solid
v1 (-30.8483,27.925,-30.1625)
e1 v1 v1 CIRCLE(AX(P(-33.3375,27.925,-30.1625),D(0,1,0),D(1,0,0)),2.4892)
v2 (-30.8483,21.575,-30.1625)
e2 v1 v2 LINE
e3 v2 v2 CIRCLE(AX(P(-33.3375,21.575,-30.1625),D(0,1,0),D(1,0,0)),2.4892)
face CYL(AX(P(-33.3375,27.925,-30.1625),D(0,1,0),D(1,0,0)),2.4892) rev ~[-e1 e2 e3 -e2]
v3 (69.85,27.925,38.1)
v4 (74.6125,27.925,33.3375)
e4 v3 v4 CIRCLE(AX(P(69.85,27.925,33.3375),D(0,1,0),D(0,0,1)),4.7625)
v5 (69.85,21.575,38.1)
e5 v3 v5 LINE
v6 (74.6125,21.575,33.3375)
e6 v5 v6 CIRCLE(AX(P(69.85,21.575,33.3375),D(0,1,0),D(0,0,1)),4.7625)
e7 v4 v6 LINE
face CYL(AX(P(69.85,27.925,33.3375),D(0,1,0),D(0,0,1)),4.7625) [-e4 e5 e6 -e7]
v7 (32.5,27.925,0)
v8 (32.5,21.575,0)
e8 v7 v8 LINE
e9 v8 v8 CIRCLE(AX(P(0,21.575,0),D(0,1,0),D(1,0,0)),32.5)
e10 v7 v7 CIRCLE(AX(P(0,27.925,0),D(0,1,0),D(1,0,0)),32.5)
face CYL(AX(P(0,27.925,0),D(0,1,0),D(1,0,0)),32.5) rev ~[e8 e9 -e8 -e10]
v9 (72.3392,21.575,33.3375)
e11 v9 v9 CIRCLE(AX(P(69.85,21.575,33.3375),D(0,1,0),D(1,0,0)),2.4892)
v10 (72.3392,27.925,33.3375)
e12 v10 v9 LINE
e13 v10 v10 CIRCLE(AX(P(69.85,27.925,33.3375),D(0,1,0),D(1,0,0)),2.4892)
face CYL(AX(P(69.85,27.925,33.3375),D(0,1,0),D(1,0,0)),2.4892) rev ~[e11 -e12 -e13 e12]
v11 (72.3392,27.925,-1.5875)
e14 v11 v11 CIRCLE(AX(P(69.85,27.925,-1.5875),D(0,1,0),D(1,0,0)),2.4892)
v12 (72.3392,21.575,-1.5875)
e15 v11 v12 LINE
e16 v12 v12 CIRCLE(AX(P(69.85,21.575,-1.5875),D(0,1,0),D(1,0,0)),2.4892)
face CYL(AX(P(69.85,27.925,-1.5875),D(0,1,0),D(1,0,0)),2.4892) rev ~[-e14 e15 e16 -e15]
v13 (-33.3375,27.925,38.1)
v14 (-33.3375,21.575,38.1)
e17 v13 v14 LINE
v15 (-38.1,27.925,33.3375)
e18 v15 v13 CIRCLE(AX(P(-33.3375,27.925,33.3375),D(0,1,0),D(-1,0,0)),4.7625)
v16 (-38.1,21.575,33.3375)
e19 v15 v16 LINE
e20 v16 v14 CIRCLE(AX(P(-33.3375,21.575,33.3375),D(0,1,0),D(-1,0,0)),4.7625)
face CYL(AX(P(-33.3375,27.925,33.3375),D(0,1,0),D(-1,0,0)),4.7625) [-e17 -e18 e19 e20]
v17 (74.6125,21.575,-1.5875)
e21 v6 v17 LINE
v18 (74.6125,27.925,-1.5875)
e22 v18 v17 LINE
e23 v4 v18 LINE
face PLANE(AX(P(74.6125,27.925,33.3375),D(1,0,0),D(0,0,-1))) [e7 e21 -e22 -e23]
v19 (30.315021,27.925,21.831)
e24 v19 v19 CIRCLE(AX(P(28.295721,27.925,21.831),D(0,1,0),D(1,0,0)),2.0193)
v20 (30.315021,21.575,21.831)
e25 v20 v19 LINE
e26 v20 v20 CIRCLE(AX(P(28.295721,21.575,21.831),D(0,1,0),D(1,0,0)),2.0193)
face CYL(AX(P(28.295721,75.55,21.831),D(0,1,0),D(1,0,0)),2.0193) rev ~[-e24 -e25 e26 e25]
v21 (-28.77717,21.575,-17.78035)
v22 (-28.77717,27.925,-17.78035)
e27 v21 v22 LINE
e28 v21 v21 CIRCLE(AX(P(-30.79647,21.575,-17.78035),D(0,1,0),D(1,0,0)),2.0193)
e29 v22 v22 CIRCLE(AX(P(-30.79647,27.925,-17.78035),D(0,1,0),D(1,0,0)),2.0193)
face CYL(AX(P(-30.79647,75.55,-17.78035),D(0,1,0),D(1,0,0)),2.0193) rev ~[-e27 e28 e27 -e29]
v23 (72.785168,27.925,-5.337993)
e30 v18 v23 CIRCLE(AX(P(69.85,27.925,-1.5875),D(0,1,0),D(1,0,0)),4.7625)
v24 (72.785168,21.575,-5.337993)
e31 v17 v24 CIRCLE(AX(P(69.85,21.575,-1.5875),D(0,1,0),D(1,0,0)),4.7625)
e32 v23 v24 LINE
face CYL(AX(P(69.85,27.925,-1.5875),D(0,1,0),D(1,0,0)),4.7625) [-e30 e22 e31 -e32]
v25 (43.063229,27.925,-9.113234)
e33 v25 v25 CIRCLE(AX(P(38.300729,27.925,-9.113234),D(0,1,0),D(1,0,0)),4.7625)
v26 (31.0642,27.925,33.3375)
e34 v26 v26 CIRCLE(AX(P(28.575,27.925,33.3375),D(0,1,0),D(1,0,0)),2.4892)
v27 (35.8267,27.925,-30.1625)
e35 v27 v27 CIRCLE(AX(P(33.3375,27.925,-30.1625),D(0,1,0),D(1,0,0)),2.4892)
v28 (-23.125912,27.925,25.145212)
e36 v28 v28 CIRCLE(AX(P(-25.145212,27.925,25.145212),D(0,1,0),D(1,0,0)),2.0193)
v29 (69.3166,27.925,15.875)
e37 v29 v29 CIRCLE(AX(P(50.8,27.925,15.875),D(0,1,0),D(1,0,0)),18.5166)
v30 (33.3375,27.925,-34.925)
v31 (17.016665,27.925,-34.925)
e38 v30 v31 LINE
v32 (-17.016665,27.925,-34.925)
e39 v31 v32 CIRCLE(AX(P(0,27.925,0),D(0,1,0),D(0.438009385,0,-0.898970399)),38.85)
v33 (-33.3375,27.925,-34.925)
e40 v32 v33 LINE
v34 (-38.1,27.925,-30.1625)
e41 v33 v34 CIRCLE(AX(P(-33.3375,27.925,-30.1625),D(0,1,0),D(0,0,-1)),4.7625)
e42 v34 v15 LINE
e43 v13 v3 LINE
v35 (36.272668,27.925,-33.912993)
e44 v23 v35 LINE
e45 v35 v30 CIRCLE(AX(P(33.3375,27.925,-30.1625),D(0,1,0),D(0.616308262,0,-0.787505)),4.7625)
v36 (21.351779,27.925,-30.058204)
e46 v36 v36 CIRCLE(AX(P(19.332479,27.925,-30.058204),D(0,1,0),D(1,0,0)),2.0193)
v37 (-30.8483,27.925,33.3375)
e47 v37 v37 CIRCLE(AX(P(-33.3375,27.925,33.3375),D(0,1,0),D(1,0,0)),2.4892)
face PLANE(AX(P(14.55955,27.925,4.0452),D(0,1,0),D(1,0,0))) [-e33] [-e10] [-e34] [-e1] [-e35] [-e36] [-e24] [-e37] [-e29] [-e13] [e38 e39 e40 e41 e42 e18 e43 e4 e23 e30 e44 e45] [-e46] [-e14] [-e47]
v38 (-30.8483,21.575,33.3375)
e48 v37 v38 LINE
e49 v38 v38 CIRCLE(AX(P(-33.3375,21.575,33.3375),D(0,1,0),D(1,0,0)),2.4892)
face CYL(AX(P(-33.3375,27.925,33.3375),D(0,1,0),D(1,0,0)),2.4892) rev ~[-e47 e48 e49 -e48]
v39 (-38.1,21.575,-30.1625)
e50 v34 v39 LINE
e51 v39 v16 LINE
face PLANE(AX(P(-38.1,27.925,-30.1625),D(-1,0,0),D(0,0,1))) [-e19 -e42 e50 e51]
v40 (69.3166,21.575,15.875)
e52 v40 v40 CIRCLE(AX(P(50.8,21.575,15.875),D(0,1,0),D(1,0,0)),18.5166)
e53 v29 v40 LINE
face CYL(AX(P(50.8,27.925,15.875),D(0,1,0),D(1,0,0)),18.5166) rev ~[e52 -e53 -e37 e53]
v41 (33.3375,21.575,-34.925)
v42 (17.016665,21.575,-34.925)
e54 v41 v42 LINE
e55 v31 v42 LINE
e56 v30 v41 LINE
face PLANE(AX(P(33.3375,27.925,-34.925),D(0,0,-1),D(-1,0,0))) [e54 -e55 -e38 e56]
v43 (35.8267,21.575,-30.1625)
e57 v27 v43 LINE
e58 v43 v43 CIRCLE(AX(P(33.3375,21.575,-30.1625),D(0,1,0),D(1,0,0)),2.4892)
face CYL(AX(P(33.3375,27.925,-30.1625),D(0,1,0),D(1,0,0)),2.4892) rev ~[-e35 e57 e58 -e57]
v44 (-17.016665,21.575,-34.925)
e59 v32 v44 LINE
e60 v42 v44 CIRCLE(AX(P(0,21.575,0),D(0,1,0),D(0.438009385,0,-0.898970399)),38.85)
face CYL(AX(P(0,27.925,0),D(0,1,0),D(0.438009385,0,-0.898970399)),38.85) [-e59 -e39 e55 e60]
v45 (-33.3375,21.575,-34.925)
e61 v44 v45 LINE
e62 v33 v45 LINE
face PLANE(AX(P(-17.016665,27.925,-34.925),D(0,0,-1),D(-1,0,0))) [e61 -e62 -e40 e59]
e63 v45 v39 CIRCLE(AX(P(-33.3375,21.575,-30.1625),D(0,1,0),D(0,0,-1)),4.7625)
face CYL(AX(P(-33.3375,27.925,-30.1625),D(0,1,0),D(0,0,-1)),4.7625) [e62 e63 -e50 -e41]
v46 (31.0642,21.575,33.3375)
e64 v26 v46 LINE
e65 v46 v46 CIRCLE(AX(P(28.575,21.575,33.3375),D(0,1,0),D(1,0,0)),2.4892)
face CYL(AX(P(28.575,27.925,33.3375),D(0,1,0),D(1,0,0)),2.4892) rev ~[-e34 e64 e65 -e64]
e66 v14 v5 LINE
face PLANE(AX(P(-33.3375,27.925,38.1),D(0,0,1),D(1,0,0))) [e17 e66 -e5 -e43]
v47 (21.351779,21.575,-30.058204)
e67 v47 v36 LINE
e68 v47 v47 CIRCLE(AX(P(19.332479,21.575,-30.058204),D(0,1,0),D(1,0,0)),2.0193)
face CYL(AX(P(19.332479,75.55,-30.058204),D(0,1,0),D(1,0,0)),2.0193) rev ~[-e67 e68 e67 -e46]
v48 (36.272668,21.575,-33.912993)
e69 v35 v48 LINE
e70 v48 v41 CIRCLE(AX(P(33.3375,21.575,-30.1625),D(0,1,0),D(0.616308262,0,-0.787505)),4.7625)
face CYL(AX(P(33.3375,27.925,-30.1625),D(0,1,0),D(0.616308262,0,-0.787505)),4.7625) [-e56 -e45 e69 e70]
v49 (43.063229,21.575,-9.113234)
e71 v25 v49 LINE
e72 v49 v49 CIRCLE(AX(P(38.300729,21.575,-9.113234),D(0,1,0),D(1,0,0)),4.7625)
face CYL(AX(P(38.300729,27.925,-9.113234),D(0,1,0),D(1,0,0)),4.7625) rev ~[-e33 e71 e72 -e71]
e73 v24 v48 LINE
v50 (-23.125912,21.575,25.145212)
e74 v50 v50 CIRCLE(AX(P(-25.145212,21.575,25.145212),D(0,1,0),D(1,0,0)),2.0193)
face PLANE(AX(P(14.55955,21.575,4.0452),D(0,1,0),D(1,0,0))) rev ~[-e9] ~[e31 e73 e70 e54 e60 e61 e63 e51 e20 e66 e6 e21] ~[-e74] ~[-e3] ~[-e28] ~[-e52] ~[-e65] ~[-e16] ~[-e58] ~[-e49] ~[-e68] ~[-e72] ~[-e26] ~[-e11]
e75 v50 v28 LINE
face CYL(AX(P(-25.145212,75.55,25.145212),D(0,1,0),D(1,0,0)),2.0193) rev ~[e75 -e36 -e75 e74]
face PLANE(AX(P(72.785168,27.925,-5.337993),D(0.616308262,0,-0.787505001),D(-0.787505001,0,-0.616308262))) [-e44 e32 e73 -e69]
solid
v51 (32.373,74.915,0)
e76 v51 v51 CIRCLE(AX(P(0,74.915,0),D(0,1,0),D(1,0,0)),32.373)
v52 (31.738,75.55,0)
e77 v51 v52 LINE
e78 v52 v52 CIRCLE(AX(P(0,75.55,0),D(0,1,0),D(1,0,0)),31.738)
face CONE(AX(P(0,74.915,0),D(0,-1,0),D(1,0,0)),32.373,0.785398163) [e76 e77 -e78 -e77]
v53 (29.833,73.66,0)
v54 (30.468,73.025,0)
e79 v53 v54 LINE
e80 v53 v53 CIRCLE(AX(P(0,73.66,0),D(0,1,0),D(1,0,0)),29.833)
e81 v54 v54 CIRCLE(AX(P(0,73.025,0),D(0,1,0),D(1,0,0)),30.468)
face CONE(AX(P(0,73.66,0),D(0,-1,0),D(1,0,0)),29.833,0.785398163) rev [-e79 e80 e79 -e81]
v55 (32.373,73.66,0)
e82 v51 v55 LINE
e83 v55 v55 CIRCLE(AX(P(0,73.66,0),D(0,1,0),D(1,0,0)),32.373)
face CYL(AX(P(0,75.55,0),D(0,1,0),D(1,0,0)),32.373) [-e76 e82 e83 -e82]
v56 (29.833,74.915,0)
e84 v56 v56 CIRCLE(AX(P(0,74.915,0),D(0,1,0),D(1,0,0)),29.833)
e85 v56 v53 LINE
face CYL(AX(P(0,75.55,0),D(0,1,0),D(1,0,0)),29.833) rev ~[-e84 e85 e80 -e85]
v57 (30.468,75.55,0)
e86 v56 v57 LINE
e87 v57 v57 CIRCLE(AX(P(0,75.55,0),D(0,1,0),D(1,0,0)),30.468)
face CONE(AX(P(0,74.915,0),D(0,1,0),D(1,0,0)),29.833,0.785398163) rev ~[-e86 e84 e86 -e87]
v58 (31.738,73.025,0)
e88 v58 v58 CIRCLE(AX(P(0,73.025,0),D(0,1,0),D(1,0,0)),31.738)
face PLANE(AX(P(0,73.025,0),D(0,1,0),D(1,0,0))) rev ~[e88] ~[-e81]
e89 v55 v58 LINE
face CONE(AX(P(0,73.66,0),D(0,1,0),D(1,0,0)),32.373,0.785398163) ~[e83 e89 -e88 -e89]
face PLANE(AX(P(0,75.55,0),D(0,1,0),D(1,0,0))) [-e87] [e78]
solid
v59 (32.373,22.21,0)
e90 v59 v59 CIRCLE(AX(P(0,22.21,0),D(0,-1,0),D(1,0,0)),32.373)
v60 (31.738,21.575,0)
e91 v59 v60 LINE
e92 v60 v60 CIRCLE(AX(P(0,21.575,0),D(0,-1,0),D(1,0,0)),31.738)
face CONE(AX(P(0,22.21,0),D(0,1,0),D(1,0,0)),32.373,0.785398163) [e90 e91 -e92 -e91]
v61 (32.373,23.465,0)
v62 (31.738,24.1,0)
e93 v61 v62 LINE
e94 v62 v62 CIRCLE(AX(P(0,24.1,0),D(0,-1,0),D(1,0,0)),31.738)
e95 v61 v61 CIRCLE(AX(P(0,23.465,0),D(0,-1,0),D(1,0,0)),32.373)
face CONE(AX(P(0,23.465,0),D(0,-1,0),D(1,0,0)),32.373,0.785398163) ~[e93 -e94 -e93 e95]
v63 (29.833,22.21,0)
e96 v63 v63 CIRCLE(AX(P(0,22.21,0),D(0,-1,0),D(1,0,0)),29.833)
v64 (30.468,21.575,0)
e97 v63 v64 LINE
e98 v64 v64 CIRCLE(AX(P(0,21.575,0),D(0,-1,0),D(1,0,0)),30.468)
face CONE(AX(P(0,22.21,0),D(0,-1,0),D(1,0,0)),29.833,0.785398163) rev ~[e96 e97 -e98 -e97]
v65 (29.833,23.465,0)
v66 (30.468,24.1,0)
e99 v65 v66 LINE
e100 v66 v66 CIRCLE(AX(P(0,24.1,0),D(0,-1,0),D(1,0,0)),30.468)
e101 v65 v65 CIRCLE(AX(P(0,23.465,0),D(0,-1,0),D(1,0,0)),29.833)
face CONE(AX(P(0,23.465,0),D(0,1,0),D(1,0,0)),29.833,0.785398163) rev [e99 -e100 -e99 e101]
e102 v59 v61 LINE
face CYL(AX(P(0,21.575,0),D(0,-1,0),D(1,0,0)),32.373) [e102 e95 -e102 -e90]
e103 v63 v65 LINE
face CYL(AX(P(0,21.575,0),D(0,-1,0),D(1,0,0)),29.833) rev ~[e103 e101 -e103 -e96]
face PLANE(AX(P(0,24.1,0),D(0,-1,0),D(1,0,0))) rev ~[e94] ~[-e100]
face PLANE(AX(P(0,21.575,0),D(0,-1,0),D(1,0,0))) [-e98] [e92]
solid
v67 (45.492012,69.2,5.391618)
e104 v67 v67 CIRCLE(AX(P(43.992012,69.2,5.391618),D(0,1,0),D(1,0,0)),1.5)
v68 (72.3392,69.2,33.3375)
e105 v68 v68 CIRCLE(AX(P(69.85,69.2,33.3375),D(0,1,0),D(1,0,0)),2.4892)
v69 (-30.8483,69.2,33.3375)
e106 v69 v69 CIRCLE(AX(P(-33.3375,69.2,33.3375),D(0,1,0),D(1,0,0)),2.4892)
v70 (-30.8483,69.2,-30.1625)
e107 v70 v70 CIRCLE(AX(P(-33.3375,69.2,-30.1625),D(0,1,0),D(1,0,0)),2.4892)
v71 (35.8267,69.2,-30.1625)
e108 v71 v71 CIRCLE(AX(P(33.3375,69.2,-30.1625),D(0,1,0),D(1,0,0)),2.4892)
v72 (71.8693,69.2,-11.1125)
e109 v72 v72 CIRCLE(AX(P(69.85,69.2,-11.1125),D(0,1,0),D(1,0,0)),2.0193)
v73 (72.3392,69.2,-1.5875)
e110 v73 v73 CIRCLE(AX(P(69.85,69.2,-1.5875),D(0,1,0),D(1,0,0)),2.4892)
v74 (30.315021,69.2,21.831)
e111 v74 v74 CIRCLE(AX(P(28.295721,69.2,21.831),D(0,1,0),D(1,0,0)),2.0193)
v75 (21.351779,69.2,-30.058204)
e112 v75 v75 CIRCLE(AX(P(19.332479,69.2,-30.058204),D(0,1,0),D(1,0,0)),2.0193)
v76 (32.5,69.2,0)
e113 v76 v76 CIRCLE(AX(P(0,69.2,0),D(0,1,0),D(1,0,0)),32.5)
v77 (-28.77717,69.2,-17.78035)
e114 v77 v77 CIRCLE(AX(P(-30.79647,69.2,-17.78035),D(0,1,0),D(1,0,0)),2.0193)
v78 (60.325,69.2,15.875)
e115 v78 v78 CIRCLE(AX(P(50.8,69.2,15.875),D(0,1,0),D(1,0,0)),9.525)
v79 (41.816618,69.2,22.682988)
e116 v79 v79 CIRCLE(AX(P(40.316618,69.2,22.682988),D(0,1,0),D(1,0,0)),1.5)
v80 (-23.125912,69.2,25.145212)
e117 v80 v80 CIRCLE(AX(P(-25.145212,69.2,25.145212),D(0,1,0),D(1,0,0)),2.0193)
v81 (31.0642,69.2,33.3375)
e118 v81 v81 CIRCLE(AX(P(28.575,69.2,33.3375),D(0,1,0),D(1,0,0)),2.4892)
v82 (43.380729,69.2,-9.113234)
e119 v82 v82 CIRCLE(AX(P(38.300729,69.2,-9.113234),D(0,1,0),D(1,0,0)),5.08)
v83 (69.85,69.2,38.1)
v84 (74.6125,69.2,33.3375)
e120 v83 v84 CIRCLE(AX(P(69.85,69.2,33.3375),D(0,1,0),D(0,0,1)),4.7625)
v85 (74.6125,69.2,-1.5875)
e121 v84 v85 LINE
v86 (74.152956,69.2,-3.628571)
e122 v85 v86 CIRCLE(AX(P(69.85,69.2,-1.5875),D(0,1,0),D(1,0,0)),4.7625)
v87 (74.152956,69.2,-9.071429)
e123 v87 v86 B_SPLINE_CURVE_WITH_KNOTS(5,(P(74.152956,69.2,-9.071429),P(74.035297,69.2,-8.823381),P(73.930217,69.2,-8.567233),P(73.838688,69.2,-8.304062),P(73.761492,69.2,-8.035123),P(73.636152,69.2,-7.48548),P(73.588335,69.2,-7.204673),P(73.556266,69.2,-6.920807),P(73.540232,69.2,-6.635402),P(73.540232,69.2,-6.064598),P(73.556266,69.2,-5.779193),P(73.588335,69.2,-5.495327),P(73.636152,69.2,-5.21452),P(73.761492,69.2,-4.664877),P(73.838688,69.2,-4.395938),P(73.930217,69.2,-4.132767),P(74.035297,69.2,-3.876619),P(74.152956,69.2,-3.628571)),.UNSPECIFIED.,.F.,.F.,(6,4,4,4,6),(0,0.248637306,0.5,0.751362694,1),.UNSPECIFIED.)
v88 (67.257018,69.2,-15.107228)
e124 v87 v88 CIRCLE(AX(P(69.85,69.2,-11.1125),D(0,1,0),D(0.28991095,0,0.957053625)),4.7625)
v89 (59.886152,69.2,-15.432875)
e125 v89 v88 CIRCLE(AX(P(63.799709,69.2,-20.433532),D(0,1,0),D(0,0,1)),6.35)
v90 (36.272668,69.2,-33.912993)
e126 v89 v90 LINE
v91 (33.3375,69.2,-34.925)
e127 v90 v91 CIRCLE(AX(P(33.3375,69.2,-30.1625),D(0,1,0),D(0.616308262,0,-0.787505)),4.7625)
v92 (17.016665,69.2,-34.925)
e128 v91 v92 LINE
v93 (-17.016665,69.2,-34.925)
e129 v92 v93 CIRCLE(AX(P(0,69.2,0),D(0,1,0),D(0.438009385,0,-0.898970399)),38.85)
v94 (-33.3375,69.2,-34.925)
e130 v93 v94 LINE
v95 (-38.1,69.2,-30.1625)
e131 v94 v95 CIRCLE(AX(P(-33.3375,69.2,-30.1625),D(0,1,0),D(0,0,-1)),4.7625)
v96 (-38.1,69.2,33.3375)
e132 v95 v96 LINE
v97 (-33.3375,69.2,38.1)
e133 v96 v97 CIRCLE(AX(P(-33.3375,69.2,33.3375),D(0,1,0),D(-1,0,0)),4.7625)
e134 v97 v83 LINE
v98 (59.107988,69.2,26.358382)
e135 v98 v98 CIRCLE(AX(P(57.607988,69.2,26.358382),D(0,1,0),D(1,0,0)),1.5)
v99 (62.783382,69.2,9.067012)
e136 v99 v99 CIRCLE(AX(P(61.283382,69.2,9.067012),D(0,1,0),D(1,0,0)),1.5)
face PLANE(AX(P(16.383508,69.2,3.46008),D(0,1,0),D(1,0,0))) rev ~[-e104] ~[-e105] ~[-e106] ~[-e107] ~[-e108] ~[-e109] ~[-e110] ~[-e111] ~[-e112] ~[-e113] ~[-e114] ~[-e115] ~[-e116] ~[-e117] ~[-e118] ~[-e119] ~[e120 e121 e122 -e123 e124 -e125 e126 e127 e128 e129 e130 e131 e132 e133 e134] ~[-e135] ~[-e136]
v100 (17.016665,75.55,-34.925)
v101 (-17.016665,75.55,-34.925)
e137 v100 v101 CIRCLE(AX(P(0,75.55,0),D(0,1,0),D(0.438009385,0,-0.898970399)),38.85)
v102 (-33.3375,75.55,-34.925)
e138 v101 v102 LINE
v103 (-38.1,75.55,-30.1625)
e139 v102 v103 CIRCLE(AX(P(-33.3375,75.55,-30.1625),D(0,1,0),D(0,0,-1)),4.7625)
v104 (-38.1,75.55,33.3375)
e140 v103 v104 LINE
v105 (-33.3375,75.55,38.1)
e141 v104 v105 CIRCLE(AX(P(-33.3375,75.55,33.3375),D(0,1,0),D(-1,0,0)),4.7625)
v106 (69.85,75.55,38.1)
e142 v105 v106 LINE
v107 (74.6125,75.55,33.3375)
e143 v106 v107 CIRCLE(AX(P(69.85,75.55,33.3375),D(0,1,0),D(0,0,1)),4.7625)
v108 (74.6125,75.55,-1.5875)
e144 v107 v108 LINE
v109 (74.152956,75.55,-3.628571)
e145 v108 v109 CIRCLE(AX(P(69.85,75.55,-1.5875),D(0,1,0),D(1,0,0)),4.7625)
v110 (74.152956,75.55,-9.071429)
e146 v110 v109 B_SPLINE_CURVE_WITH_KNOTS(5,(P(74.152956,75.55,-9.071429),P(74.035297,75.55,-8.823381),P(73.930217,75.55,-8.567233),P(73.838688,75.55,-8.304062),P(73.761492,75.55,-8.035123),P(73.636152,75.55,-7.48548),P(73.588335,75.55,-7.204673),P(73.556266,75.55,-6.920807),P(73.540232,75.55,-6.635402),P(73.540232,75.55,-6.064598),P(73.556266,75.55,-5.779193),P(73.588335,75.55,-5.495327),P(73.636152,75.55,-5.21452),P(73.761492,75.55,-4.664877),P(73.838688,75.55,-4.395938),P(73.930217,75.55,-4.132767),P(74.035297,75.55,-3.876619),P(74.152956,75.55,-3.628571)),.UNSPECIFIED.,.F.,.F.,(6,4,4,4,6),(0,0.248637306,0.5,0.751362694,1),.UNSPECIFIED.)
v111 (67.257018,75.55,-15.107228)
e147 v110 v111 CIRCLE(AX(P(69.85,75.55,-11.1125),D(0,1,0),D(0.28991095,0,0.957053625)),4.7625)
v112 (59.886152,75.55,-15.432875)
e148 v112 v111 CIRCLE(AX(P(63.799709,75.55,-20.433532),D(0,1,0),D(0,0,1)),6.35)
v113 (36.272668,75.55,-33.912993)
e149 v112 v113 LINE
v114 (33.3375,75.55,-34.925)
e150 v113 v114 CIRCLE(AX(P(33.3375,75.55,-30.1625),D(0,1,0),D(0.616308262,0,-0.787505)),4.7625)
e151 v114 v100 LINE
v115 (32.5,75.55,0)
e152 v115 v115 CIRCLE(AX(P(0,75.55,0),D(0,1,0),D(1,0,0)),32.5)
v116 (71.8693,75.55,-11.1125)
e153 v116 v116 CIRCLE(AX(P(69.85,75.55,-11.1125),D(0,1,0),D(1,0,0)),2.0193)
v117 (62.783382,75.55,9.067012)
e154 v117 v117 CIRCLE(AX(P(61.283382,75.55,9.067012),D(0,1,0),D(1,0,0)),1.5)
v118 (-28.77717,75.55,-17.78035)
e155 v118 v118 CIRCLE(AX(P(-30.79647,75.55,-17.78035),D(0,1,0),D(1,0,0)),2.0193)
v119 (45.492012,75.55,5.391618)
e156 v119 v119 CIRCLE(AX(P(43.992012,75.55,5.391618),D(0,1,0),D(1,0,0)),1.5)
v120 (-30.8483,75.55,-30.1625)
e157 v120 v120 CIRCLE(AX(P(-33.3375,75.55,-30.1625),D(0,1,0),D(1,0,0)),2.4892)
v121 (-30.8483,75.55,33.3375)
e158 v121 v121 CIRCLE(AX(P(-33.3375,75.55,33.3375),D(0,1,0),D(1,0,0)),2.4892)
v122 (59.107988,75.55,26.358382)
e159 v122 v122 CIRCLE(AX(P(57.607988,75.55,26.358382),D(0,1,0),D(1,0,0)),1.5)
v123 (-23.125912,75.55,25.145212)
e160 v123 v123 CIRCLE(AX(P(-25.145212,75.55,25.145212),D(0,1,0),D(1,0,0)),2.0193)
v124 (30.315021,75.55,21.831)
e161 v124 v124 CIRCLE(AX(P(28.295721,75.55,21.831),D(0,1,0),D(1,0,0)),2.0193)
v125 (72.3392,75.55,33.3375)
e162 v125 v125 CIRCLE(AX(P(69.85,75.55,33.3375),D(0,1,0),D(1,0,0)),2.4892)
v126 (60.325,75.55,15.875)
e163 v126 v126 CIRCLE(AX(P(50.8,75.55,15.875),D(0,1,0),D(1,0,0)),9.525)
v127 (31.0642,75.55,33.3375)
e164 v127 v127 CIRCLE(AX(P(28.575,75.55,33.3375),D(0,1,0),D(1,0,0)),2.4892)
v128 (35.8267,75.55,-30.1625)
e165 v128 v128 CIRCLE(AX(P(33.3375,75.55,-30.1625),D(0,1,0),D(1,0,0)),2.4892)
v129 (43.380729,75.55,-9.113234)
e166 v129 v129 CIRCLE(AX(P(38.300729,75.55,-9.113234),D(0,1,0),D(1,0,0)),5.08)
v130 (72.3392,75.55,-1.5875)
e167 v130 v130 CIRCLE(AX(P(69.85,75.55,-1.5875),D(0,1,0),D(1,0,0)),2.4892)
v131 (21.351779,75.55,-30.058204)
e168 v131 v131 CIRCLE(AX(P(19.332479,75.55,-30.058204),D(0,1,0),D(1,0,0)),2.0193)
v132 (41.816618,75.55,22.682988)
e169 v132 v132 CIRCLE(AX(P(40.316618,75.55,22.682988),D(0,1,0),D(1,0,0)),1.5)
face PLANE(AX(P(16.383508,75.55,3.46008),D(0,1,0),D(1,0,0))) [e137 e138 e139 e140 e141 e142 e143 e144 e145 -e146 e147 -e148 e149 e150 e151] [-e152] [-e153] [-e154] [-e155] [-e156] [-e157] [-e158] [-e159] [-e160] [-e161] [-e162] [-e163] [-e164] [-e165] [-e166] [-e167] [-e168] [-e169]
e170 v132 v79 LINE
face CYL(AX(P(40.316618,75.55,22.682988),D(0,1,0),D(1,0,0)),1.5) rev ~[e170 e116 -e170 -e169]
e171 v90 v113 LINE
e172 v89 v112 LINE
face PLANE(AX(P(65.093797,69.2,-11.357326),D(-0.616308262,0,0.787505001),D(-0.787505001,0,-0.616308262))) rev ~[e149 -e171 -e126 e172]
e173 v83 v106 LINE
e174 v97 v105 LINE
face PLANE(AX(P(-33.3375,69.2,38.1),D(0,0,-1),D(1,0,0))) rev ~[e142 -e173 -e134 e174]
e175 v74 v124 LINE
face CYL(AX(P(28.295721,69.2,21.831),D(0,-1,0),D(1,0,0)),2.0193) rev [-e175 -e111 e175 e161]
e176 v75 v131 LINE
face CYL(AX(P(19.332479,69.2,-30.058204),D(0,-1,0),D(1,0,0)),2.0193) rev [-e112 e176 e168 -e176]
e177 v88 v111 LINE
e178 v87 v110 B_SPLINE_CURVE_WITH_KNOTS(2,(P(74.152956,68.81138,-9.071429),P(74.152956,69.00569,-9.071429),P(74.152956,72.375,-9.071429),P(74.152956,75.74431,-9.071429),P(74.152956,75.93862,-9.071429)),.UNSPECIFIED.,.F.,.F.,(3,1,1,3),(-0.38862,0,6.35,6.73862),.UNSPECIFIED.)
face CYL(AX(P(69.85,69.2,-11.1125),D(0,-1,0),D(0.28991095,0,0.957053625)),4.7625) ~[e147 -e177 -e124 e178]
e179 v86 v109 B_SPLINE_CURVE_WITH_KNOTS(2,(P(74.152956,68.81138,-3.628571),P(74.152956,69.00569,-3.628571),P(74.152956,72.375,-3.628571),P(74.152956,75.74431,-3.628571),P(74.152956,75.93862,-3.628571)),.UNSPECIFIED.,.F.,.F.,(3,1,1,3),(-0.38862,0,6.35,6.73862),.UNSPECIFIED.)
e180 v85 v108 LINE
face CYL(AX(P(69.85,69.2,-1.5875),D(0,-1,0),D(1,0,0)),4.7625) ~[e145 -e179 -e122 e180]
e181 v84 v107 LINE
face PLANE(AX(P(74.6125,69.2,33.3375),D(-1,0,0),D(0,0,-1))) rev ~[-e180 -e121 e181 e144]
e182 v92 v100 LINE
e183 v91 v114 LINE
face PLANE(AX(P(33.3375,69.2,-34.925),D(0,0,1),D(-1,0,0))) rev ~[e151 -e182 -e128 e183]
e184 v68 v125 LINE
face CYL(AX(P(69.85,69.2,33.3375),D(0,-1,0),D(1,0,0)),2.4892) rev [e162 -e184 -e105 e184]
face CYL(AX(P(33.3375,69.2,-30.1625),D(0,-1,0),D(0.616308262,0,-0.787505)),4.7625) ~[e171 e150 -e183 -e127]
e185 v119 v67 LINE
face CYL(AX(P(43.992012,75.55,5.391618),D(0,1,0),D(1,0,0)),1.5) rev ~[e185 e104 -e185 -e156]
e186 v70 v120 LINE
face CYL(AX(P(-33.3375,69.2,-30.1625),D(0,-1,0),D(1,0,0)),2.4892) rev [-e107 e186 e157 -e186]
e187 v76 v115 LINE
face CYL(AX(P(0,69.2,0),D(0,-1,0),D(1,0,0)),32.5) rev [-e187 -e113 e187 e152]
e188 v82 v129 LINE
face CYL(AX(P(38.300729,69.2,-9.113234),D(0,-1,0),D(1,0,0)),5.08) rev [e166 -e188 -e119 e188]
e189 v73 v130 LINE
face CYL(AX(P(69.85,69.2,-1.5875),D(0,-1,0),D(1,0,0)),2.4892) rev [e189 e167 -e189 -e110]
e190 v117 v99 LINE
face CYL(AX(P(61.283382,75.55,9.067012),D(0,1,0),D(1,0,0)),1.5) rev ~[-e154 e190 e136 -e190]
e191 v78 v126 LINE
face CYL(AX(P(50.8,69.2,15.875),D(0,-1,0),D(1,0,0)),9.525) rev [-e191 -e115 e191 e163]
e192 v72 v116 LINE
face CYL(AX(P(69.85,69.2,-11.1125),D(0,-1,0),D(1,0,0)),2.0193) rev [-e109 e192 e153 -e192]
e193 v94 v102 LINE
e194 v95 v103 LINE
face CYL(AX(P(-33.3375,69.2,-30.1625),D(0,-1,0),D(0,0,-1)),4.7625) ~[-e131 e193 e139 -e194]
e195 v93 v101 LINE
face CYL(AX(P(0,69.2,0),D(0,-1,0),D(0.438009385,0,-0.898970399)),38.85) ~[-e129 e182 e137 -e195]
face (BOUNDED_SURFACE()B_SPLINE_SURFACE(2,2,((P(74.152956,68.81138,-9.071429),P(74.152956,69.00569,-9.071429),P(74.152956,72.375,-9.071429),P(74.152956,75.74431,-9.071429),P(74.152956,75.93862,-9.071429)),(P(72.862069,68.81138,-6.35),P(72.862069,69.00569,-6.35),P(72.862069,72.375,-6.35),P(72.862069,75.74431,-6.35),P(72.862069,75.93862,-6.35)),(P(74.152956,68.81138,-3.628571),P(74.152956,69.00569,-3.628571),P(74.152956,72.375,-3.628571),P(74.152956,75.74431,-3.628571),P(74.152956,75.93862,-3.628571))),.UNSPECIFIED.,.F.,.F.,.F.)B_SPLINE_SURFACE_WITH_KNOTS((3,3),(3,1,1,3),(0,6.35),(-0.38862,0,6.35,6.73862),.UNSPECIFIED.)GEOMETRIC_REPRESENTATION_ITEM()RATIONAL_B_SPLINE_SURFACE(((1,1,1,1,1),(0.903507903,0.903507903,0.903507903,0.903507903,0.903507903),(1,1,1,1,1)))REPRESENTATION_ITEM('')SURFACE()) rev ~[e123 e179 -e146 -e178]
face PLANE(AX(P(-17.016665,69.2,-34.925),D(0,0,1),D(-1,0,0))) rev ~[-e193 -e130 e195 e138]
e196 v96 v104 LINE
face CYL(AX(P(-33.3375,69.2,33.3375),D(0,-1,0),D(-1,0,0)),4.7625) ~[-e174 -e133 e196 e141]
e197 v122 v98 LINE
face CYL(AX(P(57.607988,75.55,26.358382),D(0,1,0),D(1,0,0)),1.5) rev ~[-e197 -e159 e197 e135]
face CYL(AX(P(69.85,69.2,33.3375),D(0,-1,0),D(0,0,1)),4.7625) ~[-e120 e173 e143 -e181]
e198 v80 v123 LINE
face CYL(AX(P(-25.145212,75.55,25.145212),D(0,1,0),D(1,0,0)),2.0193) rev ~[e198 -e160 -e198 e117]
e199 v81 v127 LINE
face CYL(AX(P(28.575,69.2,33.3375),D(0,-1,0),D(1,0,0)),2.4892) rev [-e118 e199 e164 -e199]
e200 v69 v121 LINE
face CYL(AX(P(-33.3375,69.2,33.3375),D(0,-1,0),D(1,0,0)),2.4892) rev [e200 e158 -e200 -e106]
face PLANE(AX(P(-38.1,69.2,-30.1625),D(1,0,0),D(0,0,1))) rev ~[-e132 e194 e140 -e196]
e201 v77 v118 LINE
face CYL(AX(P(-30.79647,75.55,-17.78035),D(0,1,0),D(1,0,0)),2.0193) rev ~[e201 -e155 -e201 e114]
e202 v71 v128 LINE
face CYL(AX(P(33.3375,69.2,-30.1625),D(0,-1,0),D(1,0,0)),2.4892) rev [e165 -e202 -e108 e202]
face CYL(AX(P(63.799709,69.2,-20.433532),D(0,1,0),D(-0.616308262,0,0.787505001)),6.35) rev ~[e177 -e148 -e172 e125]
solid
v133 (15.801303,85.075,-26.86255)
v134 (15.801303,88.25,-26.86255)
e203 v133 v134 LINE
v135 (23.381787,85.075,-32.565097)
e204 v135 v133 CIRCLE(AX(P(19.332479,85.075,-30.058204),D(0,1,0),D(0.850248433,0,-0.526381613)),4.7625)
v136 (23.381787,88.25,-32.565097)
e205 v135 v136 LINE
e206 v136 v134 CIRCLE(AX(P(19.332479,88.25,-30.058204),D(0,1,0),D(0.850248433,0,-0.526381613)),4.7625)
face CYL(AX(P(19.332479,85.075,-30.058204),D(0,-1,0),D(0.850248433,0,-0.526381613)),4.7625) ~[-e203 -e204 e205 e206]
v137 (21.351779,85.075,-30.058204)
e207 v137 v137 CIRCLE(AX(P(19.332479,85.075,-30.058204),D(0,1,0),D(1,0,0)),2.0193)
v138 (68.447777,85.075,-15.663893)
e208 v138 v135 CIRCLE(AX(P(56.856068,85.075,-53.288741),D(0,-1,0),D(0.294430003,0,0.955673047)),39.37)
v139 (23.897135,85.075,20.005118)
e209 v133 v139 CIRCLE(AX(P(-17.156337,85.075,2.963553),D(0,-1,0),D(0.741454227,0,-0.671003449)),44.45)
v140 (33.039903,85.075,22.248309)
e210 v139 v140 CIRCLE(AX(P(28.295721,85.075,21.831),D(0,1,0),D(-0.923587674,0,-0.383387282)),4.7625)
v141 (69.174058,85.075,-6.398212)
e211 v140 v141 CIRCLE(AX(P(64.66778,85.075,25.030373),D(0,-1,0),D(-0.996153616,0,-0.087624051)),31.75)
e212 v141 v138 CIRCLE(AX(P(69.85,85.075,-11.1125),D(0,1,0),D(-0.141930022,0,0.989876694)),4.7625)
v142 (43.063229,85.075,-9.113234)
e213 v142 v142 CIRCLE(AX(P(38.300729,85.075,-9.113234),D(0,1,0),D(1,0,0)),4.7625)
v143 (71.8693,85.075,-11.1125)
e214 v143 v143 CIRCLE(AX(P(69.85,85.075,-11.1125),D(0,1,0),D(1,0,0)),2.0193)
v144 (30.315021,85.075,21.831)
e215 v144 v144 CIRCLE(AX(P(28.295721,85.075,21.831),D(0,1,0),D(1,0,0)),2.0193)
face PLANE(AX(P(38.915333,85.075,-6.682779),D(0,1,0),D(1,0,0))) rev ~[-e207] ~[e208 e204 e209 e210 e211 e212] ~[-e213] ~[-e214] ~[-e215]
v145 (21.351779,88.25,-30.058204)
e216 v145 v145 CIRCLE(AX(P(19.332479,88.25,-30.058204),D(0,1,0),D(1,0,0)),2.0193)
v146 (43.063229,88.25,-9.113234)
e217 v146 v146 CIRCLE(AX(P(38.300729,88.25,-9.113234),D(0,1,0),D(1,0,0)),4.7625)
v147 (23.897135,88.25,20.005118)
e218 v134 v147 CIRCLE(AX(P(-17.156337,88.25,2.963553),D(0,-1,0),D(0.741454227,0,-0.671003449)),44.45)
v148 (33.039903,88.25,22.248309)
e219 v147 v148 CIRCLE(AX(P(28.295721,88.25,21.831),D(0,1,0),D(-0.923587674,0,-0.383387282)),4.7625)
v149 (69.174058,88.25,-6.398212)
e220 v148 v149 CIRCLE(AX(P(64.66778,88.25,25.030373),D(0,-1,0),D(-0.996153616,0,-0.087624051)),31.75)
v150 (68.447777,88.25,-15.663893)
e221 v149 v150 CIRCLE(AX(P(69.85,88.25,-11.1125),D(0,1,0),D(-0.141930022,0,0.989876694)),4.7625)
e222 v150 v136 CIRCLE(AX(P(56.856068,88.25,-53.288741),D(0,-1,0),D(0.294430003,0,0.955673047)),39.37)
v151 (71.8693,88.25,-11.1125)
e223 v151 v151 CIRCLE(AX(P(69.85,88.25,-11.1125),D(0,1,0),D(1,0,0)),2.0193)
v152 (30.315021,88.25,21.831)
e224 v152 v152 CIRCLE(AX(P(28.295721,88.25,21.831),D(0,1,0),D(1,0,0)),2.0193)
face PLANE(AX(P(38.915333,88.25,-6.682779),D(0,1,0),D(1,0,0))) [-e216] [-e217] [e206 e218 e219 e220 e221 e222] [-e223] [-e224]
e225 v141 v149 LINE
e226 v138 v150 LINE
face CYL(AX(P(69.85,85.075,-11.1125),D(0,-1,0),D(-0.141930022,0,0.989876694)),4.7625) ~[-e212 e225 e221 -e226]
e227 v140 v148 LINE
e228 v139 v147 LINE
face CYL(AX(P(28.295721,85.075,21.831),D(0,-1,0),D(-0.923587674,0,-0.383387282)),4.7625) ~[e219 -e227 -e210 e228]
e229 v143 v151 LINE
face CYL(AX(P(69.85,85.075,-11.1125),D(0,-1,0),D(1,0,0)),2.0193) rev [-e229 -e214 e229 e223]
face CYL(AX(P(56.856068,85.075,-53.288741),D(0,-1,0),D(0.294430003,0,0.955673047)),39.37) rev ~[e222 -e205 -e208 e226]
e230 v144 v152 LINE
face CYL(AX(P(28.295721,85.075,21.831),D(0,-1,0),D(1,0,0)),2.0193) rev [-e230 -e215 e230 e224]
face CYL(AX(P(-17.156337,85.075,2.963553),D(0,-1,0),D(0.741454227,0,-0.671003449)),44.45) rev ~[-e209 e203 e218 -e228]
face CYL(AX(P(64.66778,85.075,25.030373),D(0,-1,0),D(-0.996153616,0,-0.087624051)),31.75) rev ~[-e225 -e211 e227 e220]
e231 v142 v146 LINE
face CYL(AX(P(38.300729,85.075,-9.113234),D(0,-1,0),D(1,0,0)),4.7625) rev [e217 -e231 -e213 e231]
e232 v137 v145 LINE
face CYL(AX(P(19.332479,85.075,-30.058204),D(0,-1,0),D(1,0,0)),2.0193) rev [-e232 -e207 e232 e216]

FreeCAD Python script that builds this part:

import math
import FreeCAD as App
import Part
import Sketcher

V = App.Vector
Q = App.Units.Quantity


def edges_at(feature, points):
    """Names of the edges that pass closest to the given points."""
    edges = feature.Shape.Edges
    near = lambda p: min(range(len(edges)), key=lambda i: edges[i].distToShape(Part.Vertex(*p))[0])
    return sorted({f"Edge{near(p) + 1}" for p in points})

doc = App.newDocument("Part")
params = doc.addObject("Spreadsheet::Sheet", "Params")
for row, (alias, value) in enumerate([
    ("sketch1_diameter", "0.196 in"),
    ("sketch1_diameter2", "1.458 in"),
    ("sketch1_diameter3", "0.375 in"),
    ("sketch1_height", "2.5 in"),
    ("sketch1_width", "4.0625 in"),
    ("pad1_length", "0.25 in"),
    ("sketch2_diameter", "0.4 in"),
    ("sketch2_diameter2", "0.75 in"),
    ("sketch2_diameter3", "0.196 in"),
    ("sketch2_diameter4", "0.159 in"),
    ("sketch2_height", "2.5 in"),
    ("pad2_length", "0.25 in"),
    ("sketch4_radius", "1.75 in"),
    ("sketch4_radius2", "1.25 in"),
    ("sketch4_radius3", "1.55 in"),
    ("sketch4_diameter", "0.159 in"),
    ("sketch4_diameter2", "0.375 in"),
    ("pad3_length", "0.125 in"),
    ("pad4_length", "2.525 mm"),
    ("chamfer_size", "0.025 in"),
    ("pad5_length", "2.525 mm"),
    ("chamfer2_size", "0.025 in"),
    ("sketch7_diameter", "0.159 in"),
    ("pad6_length", "13.7 mm"),
    ("pad6_length2", "54.975 mm"),
    ("fillet_radius", "0.25 in"),
], start=1):
    params.set(f"A{row}", alias)
    params.set(f"B{row}", "=" + value)
    params.setAlias(f"B{row}", alias)

body = doc.addObject("PartDesign::Body", "Body")

sketch1 = body.newObject("Sketcher::SketchObject", "Sketch")
sketch1.AttachmentSupport = (doc.getObject("XZ_Plane"), [""])
sketch1.MapMode = "FlatFace"
sketch1.AttachmentOffset = App.Placement(V(0, 0, -27.925), App.Rotation())
sketch1.addGeometry([
    Part.LineSegment(V(-38.1, -30.2, 0), V(-38.1, 33.3, 0)),
    Part.ArcOfCircle(Part.Circle(V(-33.3, 33.3, 0), V(0, 0, 1), 4.8), math.radians(90), math.radians(180)),
    Part.LineSegment(V(-33.3, 38.1, 0), V(69.8, 38.1, 0)),
    Part.ArcOfCircle(Part.Circle(V(69.8, 33.3, 0), V(0, 0, 1), 4.8), math.radians(0), math.radians(90)),
    Part.LineSegment(V(74.6, 33.3, 0), V(74.6, -1.6, 0)),
    Part.ArcOfCircle(Part.Circle(V(69.8, -1.6, 0), V(0, 0, 1), 4.8), math.radians(-52), math.radians(0)),
    Part.LineSegment(V(72.8, -5.3, 0), V(36.3, -33.9, 0)),
    Part.ArcOfCircle(Part.Circle(V(33.3, -30.2, 0), V(0, 0, 1), 4.8), math.radians(-90), math.radians(-52)),
    Part.LineSegment(V(33.3, -34.9, 0), V(17, -34.9, 0)),
    Part.ArcOfCircle(Part.Circle(V(0, 0, 0), V(0, 0, 1), 38.8), math.radians(-116), math.radians(-64)),
    Part.LineSegment(V(-17, -34.9, 0), V(-33.3, -34.9, 0)),
    Part.ArcOfCircle(Part.Circle(V(-33.3, -30.2, 0), V(0, 0, 1), 4.8), math.radians(-180), math.radians(-90)),
    Part.Circle(V(-33.3, 33.3, 0), V(0, 0, 1), 2.5),
    Part.Circle(V(28.6, 33.3, 0), V(0, 0, 1), 2.5),
    Part.Circle(V(69.8, 33.3, 0), V(0, 0, 1), 2.5),
    Part.Circle(V(50.8, 15.9, 0), V(0, 0, 1), 18.5),
    Part.Circle(V(0, 0, 0), V(0, 0, 1), 32.5),
    Part.Circle(V(-33.3, -30.2, 0), V(0, 0, 1), 2.5),
    Part.Circle(V(38.3, -9.1, 0), V(0, 0, 1), 4.8),
    Part.Circle(V(69.8, -1.6, 0), V(0, 0, 1), 2.5),
    Part.Circle(V(33.3, -30.2, 0), V(0, 0, 1), 2.5),
], False)
sketch1.addConstraint([
    Sketcher.Constraint("Tangent", 0, 2, 1, 2),
    Sketcher.Constraint("Tangent", 1, 1, 2, 1),
    Sketcher.Constraint("Tangent", 2, 2, 3, 2),
    Sketcher.Constraint("Tangent", 3, 1, 4, 1),
    Sketcher.Constraint("Tangent", 4, 2, 5, 2),
    Sketcher.Constraint("Tangent", 5, 1, 6, 1),
    Sketcher.Constraint("Tangent", 6, 2, 7, 2),
    Sketcher.Constraint("Tangent", 7, 1, 8, 1),
    Sketcher.Constraint("Coincident", 8, 2, 9, 2),
    Sketcher.Constraint("Coincident", 9, 1, 10, 1),
    Sketcher.Constraint("Tangent", 10, 2, 11, 2),
    Sketcher.Constraint("Tangent", 11, 1, 0, 1),
    Sketcher.Constraint("Vertical", 0),
    Sketcher.Constraint("Horizontal", 2),
    Sketcher.Constraint("Vertical", 4),
    Sketcher.Constraint("Horizontal", 8),
    Sketcher.Constraint("Horizontal", 10),
    Sketcher.Constraint("Coincident", 9, 3, -1, 1),
    Sketcher.Constraint("Coincident", 16, 3, -1, 1),
    Sketcher.Constraint("Coincident", 12, 3, 1, 3),
    Sketcher.Constraint("Coincident", 14, 3, 3, 3),
    Sketcher.Constraint("Coincident", 17, 3, 11, 3),
    Sketcher.Constraint("Coincident", 19, 3, 5, 3),
    Sketcher.Constraint("Coincident", 20, 3, 7, 3),
    Sketcher.Constraint("Equal", 1, 3),
    Sketcher.Constraint("Equal", 3, 5),
    Sketcher.Constraint("Equal", 5, 7),
    Sketcher.Constraint("Equal", 7, 11),
    Sketcher.Constraint("Equal", 12, 13),
    Sketcher.Constraint("Equal", 13, 14),
    Sketcher.Constraint("Equal", 14, 17),
    Sketcher.Constraint("Equal", 11, 18),
    Sketcher.Constraint("Equal", 17, 19),
    Sketcher.Constraint("Equal", 19, 20),
    Sketcher.Constraint("Symmetric", 7, 3, 11, 3, -2),
    Sketcher.Constraint("Horizontal", 12, 3, 13, 3),
    Sketcher.Constraint("Diameter", 12, Q("0.196 in")),
    Sketcher.Constraint("Diameter", 15, Q("1.458 in")),
    Sketcher.Constraint("Diameter", 18, Q("0.375 in")),
    Sketcher.Constraint("DistanceY", 0, 1, 0, 2, Q("2.5 in")),
    Sketcher.Constraint("DistanceX", -1, 1, 15, 3, Q("2 in")),
    Sketcher.Constraint("DistanceX", 0, 2, -1, 1, Q("1.5 in")),
    Sketcher.Constraint("DistanceY", -1, 1, 1, 1, Q("1.5 in")),
    Sketcher.Constraint("Diameter", 16, 65.0),
    Sketcher.Constraint("DistanceX", 2, 1, 2, 2, Q("4.0625 in")),
    Sketcher.Constraint("DistanceY", 4, 2, 4, 1, Q("1.375 in")),
    Sketcher.Constraint("Radius", 9, 38.85),
    Sketcher.Constraint("DistanceX", -1, 1, 13, 3, Q("1.125 in")),
    Sketcher.Constraint("DistanceY", -1, 1, 15, 3, Q("0.625 in")),
    Sketcher.Constraint("DistanceX", -1, 1, 18, 3, 38.300729),
    Sketcher.Constraint("DistanceY", 18, 3, 5, 1, 3.775241),
])
sketch1.setExpression("Constraints[36]", "Params.sketch1_diameter")
sketch1.setExpression("Constraints[37]", "Params.sketch1_diameter2")
sketch1.setExpression("Constraints[38]", "Params.sketch1_diameter3")
sketch1.setExpression("Constraints[39]", "Params.sketch1_height")
sketch1.setExpression("Constraints[44]", "Params.sketch1_width")
pad1 = body.newObject("PartDesign::Pad", "Pad")
pad1.Profile = sketch1
pad1.setExpression("Length", "Params.pad1_length")
body2 = doc.addObject("PartDesign::Body", "Body001")

sketch2 = body2.newObject("Sketcher::SketchObject", "Sketch001")
sketch2.AttachmentSupport = (doc.getObject("XZ_Plane001"), [""])
sketch2.MapMode = "FlatFace"
sketch2.AttachmentOffset = App.Placement(V(0, 0, -69.2), App.Rotation())
sketch2.addGeometry([
    Part.LineSegment(V(65.1, -11.4, 0), V(36.3, -33.9, 0)),
    Part.ArcOfCircle(Part.Circle(V(33.3, -30.2, 0), V(0, 0, 1), 4.8), math.radians(-90), math.radians(-52)),
    Part.LineSegment(V(33.3, -34.9, 0), V(17, -34.9, 0)),
    Part.ArcOfCircle(Part.Circle(V(0, 0, 0), V(0, 0, 1), 38.8), math.radians(-116), math.radians(-64)),
    Part.LineSegment(V(-17, -34.9, 0), V(-33.3, -34.9, 0)),
    Part.ArcOfCircle(Part.Circle(V(-33.3, -30.2, 0), V(0, 0, 1), 4.8), math.radians(-180), math.radians(-90)),
    Part.LineSegment(V(-38.1, -30.2, 0), V(-38.1, 33.3, 0)),
    Part.ArcOfCircle(Part.Circle(V(-33.3, 33.3, 0), V(0, 0, 1), 4.8), math.radians(90), math.radians(180)),
    Part.LineSegment(V(-33.3, 38.1, 0), V(69.8, 38.1, 0)),
    Part.ArcOfCircle(Part.Circle(V(69.8, 33.3, 0), V(0, 0, 1), 4.8), math.radians(0), math.radians(90)),
    Part.LineSegment(V(74.6, 33.3, 0), V(74.6, -1.6, 0)),
    Part.ArcOfCircle(Part.Circle(V(69.8, -1.6, 0), V(0, 0, 1), 4.8), math.radians(-52), math.radians(0)),
    Part.LineSegment(V(72.8, -5.3, 0), V(71.2, -6.6, 0)),
    Part.ArcOfCircle(Part.Circle(V(69.8, -11.1, 0), V(0, 0, 1), 4.8), math.radians(-177), math.radians(73)),
    Part.Circle(V(-33.3, 33.3, 0), V(0, 0, 1), 2.5),
    Part.Circle(V(28.6, 33.3, 0), V(0, 0, 1), 2.5),
    Part.Circle(V(28.3, 21.8, 0), V(0, 0, 1), 2),
    Part.Circle(V(69.8, 33.3, 0), V(0, 0, 1), 2.5),
    Part.Circle(V(50.8, 15.9, 0), V(0, 0, 1), 9.5),
    Part.Circle(V(0, 0, 0), V(0, 0, 1), 32.5),
    Part.Circle(V(-33.3, -30.2, 0), V(0, 0, 1), 2.5),
    Part.Circle(V(38.3, -9.1, 0), V(0, 0, 1), 5.1),
    Part.Circle(V(69.8, -1.6, 0), V(0, 0, 1), 2.5),
    Part.Circle(V(69.8, -11.1, 0), V(0, 0, 1), 2),
    Part.Circle(V(19.3, -30.1, 0), V(0, 0, 1), 2),
    Part.Circle(V(33.3, -30.2, 0), V(0, 0, 1), 2.5),
], False)
sketch2.addConstraint([
    Sketcher.Constraint("Tangent", 0, 2, 1, 2),
    Sketcher.Constraint("Tangent", 1, 1, 2, 1),
    Sketcher.Constraint("Coincident", 2, 2, 3, 2),
    Sketcher.Constraint("Coincident", 3, 1, 4, 1),
    Sketcher.Constraint("Tangent", 4, 2, 5, 2),
    Sketcher.Constraint("Tangent", 5, 1, 6, 1),
    Sketcher.Constraint("Tangent", 6, 2, 7, 2),
    Sketcher.Constraint("Tangent", 7, 1, 8, 1),
    Sketcher.Constraint("Tangent", 8, 2, 9, 2),
    Sketcher.Constraint("Tangent", 9, 1, 10, 1),
    Sketcher.Constraint("Tangent", 10, 2, 11, 2),
    Sketcher.Constraint("Tangent", 11, 1, 12, 1),
    Sketcher.Constraint("Coincident", 12, 2, 13, 2),
    Sketcher.Constraint("Coincident", 13, 1, 0, 1),
    Sketcher.Constraint("Horizontal", 2),
    Sketcher.Constraint("Horizontal", 4),
    Sketcher.Constraint("Vertical", 6),
    Sketcher.Constraint("Horizontal", 8),
    Sketcher.Constraint("Vertical", 10),
    Sketcher.Constraint("Coincident", 3, 3, -1, 1),
    Sketcher.Constraint("Coincident", 19, 3, -1, 1),
    Sketcher.Constraint("Coincident", 14, 3, 7, 3),
    Sketcher.Constraint("Coincident", 17, 3, 9, 3),
    Sketcher.Constraint("Coincident", 20, 3, 5, 3),
    Sketcher.Constraint("Coincident", 22, 3, 11, 3),
    Sketcher.Constraint("Coincident", 23, 3, 13, 3),
    Sketcher.Constraint("Coincident", 25, 3, 1, 3),
    Sketcher.Constraint("Equal", 1, 5),
    Sketcher.Constraint("Equal", 5, 7),
    Sketcher.Constraint("Equal", 7, 9),
    Sketcher.Constraint("Equal", 9, 11),
    Sketcher.Constraint("Equal", 11, 13),
    Sketcher.Constraint("Equal", 14, 15),
    Sketcher.Constraint("Equal", 15, 17),
    Sketcher.Constraint("Equal", 17, 20),
    Sketcher.Constraint("Equal", 20, 22),
    Sketcher.Constraint("Equal", 16, 23),
    Sketcher.Constraint("Equal", 23, 24),
    Sketcher.Constraint("Equal", 22, 25),
    Sketcher.Constraint("Symmetric", 1, 3, 5, 3, -2),
    Sketcher.Constraint("Parallel", 0, 12),
    Sketcher.Constraint("Horizontal", 14, 3, 15, 3),
    Sketcher.Constraint("Vertical", 11, 3, 13, 3),
    Sketcher.Constraint("Diameter", 21, Q("0.4 in")),
    Sketcher.Constraint("Diameter", 18, Q("0.75 in")),
    Sketcher.Constraint("Diameter", 14, Q("0.196 in")),
    Sketcher.Constraint("Diameter", 16, Q("0.159 in")),
    Sketcher.Constraint("DistanceY", 6, 1, 6, 2, Q("2.5 in")),
    Sketcher.Constraint("DistanceX", -1, 1, 18, 3, Q("2 in")),
    Sketcher.Constraint("Radius", 1, Q("0.1875 in")),
    Sketcher.Constraint("DistanceX", 5, 1, -1, 1, Q("1.5 in")),
    Sketcher.Constraint("DistanceY", -1, 1, 7, 1, Q("1.5 in")),
    Sketcher.Constraint("Diameter", 19, 65.0),
    Sketcher.Constraint("DistanceX", 8, 1, 8, 2, Q("4.0625 in")),
    Sketcher.Constraint("DistanceY", 10, 2, 10, 1, Q("1.375 in")),
    Sketcher.Constraint("Radius", 3, 38.85),
    Sketcher.Constraint("DistanceY", 1, 3, 13, 3, Q("0.75 in")),
    Sketcher.Constraint("DistanceX", -1, 1, 15, 3, Q("1.125 in")),
    Sketcher.Constraint("DistanceY", -1, 1, 18, 3, Q("0.625 in")),
    Sketcher.Constraint("DistanceY", -1, 1, 16, 3, 21.831),
    Sketcher.Constraint("DistanceX", -1, 1, 12, 2, 71.230701),
    Sketcher.Constraint("DistanceX", -1, 1, 16, 3, 28.295721),
    Sketcher.Constraint("DistanceX", -1, 1, 21, 3, 38.300729),
    Sketcher.Constraint("DistanceX", -1, 1, 24, 3, 19.332479),
    Sketcher.Constraint("DistanceY", 24, 3, 21, 3, 20.94497),
    Sketcher.Constraint("DistanceY", 0, 2, 24, 3, 3.854788),
])
sketch2.setExpression("Constraints[43]", "Params.sketch2_diameter")
sketch2.setExpression("Constraints[44]", "Params.sketch2_diameter2")
sketch2.setExpression("Constraints[45]", "Params.sketch2_diameter3")
sketch2.setExpression("Constraints[46]", "Params.sketch2_diameter4")
sketch2.setExpression("Constraints[47]", "Params.sketch2_height")
pad2 = body2.newObject("PartDesign::Pad", "Pad001")
pad2.Profile = sketch2
pad2.setExpression("Length", "Params.pad2_length")
pad2.Reversed = True

sketch3 = body2.newObject("Sketcher::SketchObject", "Sketch002")
sketch3.AttachmentSupport = (doc.getObject("XZ_Plane001"), [""])
sketch3.MapMode = "FlatFace"
sketch3.AttachmentOffset = App.Placement(V(0, 0, -75.55), App.Rotation())
sketch3.addGeometry([
    Part.Circle(V(44, 5.4, 0), V(0, 0, 1), 1.5),
    Part.Circle(V(61.3, 9.1, 0), V(0, 0, 1), 1.5),
    Part.Circle(V(57.6, 26.4, 0), V(0, 0, 1), 1.5),
    Part.Circle(V(40.3, 22.7, 0), V(0, 0, 1), 1.5),
], False)
sketch3.addConstraint([
    Sketcher.Constraint("Equal", 0, 1),
    Sketcher.Constraint("Equal", 1, 2),
    Sketcher.Constraint("Equal", 2, 3),
    Sketcher.Constraint("Diameter", 0, 3.0),
    Sketcher.Constraint("DistanceX", 0, 3, 1, 3, 17.29137),
    Sketcher.Constraint("DistanceY", 1, 3, 2, 3, 17.29137),
    Sketcher.Constraint("DistanceY", 0, 3, 3, 3, 17.29137),
    Sketcher.Constraint("DistanceX", 3, 3, 2, 3, 17.29137),
    Sketcher.Constraint("DistanceX", -1, 1, 0, 3, 43.992012),
    Sketcher.Constraint("DistanceY", -1, 1, 0, 3, 5.391618),
    Sketcher.Constraint("DistanceY", -1, 1, 1, 3, 9.067012),
    Sketcher.Constraint("DistanceX", -1, 1, 2, 3, 57.607988),
])
pocket1 = body2.newObject("PartDesign::Pocket", "Pocket")
pocket1.Profile = sketch3
pocket1.Type = "ThroughAll"
pocket1.Reversed = True
body3 = doc.addObject("PartDesign::Body", "Body002")

sketch4 = body3.newObject("Sketcher::SketchObject", "Sketch003")
sketch4.AttachmentSupport = (doc.getObject("XZ_Plane002"), [""])
sketch4.MapMode = "FlatFace"
sketch4.AttachmentOffset = App.Placement(V(0, 0, -85.075), App.Rotation())
sketch4.addGeometry([
    Part.ArcOfCircle(Part.Circle(V(19.3, -30.1, 0), V(0, 0, 1), 4.8), math.radians(138), math.radians(328)),
    Part.ArcOfCircle(Part.Circle(V(-17.2, 3, 0), V(0, 0, 1), 44.5), math.radians(-42), math.radians(23)),
    Part.ArcOfCircle(Part.Circle(V(28.3, 21.8, 0), V(0, 0, 1), 4.8), math.radians(5), math.radians(203)),
    Part.ArcOfCircle(Part.Circle(V(64.7, 25, 0), V(0, 0, 1), 31.8), math.radians(-175), math.radians(-82)),
    Part.ArcOfCircle(Part.Circle(V(69.8, -11.1, 0), V(0, 0, 1), 4.8), math.radians(-107), math.radians(98)),
    Part.ArcOfCircle(Part.Circle(V(56.9, -53.3, 0), V(0, 0, 1), 39.4), math.radians(73), math.radians(148)),
    Part.Circle(V(28.3, 21.8, 0), V(0, 0, 1), 2),
    Part.Circle(V(38.3, -9.1, 0), V(0, 0, 1), 4.8),
    Part.Circle(V(19.3, -30.1, 0), V(0, 0, 1), 2),
    Part.Circle(V(69.8, -11.1, 0), V(0, 0, 1), 2),
], False)
sketch4.addConstraint([
    Sketcher.Constraint("Tangent", 0, 1, 1, 1),
    Sketcher.Constraint("Tangent", 1, 2, 2, 2),
    Sketcher.Constraint("Tangent", 2, 1, 3, 1),
    Sketcher.Constraint("Tangent", 3, 2, 4, 2),
    Sketcher.Constraint("Tangent", 4, 1, 5, 1),
    Sketcher.Constraint("Tangent", 5, 2, 0, 2),
    Sketcher.Constraint("Coincident", 6, 3, 2, 3),
    Sketcher.Constraint("Coincident", 8, 3, 0, 3),
    Sketcher.Constraint("Coincident", 9, 3, 4, 3),
    Sketcher.Constraint("Equal", 0, 2),
    Sketcher.Constraint("Equal", 2, 4),
    Sketcher.Constraint("Equal", 4, 7),
    Sketcher.Constraint("Equal", 6, 8),
    Sketcher.Constraint("Equal", 8, 9),
    Sketcher.Constraint("Radius", 1, Q("1.75 in")),
    Sketcher.Constraint("Radius", 3, Q("1.25 in")),
    Sketcher.Constraint("Radius", 5, Q("1.55 in")),
    Sketcher.Constraint("Diameter", 6, Q("0.159 in")),
    Sketcher.Constraint("Diameter", 7, Q("0.375 in")),
    Sketcher.Constraint("DistanceX", -1, 1, 4, 3, Q("2.75 in")),
    Sketcher.Constraint("DistanceY", 4, 3, -1, 1, Q("0.4375 in")),
    Sketcher.Constraint("DistanceY", 4, 1, 7, 3, Q("0.2579 in")),
    Sketcher.Constraint("DistanceY", -1, 1, 2, 3, 21.831),
    Sketcher.Constraint("DistanceX", 0, 3, 3, 3, 45.335301),
    Sketcher.Constraint("DistanceX", -1, 1, 0, 3, 19.332479),
    Sketcher.Constraint("DistanceY", 5, 3, -1, 1, 53.288741),
    Sketcher.Constraint("DistanceX", -1, 1, 7, 3, 38.300729),
])
sketch4.setExpression("Constraints[14]", "Params.sketch4_radius")
sketch4.setExpression("Constraints[15]", "Params.sketch4_radius2")
sketch4.setExpression("Constraints[16]", "Params.sketch4_radius3")
sketch4.setExpression("Constraints[17]", "Params.sketch4_diameter")
sketch4.setExpression("Constraints[18]", "Params.sketch4_diameter2")
pad3 = body3.newObject("PartDesign::Pad", "Pad002")
pad3.Profile = sketch4
pad3.setExpression("Length", "Params.pad3_length")
pad3.Reversed = True
body4 = doc.addObject("PartDesign::Body", "Body003")

sketch5 = body4.newObject("Sketcher::SketchObject", "Sketch004")
sketch5.AttachmentSupport = (doc.getObject("XZ_Plane003"), [""])
sketch5.MapMode = "FlatFace"
sketch5.AttachmentOffset = App.Placement(V(0, 0, -75.55), App.Rotation())
sketch5.addGeometry([
    Part.Circle(V(0, 0, 0), V(0, 0, 1), 32),
    Part.Circle(V(0, 0, 0), V(0, 0, 1), 30),
], False)
sketch5.addConstraint([
    Sketcher.Constraint("Coincident", 0, 3, -1, 1),
    Sketcher.Constraint("Coincident", 1, 3, -1, 1),
    Sketcher.Constraint("Diameter", 0, 64.746),
    Sketcher.Constraint("Diameter", 1, 59.666),
])
pad4 = body4.newObject("PartDesign::Pad", "Pad003")
pad4.Profile = sketch5
pad4.setExpression("Length", "Params.pad4_length")
doc.recompute()

chamfer = body4.newObject("PartDesign::Chamfer", "Chamfer")
chamfer.Base = (pad4, edges_at(pad4, [
    (-32.373, 75.55, 0),
    (-32.373, 73.025, 0),
    (-29.833, 73.025, 0),
    (-29.833, 75.55, 0),
]))
chamfer.setExpression("Size", "Params.chamfer_size")
body5 = doc.addObject("PartDesign::Body", "Body004")

sketch6 = body5.newObject("Sketcher::SketchObject", "Sketch005")
sketch6.AttachmentSupport = (doc.getObject("XZ_Plane004"), [""])
sketch6.MapMode = "FlatFace"
sketch6.AttachmentOffset = App.Placement(V(0, 0, -21.575), App.Rotation())
sketch6.addGeometry([
    Part.Circle(V(0, 0, 0), V(0, 0, 1), 32),
    Part.Circle(V(0, 0, 0), V(0, 0, 1), 30),
], False)
sketch6.addConstraint([
    Sketcher.Constraint("Coincident", 0, 3, -1, 1),
    Sketcher.Constraint("Coincident", 1, 3, -1, 1),
    Sketcher.Constraint("Diameter", 0, 64.746),
    Sketcher.Constraint("Diameter", 1, 59.666),
])
pad5 = body5.newObject("PartDesign::Pad", "Pad004")
pad5.Profile = sketch6
pad5.setExpression("Length", "Params.pad5_length")
pad5.Reversed = True
doc.recompute()

chamfer2 = body5.newObject("PartDesign::Chamfer", "Chamfer001")
chamfer2.Base = (pad5, edges_at(pad5, [
    (-32.373, 21.575, 0),
    (-32.373, 24.1, 0),
    (-29.833, 24.1, 0),
    (-29.833, 21.575, 0),
]))
chamfer2.setExpression("Size", "Params.chamfer2_size")
body6 = doc.addObject("PartDesign::Body", "Body005")
body6.AllowCompound = True

sketch7 = body6.newObject("Sketcher::SketchObject", "Sketch006")
sketch7.AttachmentSupport = (doc.getObject("XZ_Plane005"), [""])
sketch7.MapMode = "FlatFace"
sketch7.AttachmentOffset = App.Placement(V(0, 0, -75.55), App.Rotation())
sketch7.addGeometry([
    Part.Circle(V(-25.1, 25.1, 0), V(0, 0, 1), 2),
    Part.Circle(V(-30.8, -17.8, 0), V(0, 0, 1), 2),
    Part.Circle(V(19.3, -30.1, 0), V(0, 0, 1), 2),
    Part.Circle(V(28.3, 21.8, 0), V(0, 0, 1), 2),
], False)
sketch7.addConstraint([
    Sketcher.Constraint("Equal", 0, 1),
    Sketcher.Constraint("Equal", 1, 2),
    Sketcher.Constraint("Equal", 2, 3),
    Sketcher.Constraint("Diameter", 0, Q("0.159 in")),
    Sketcher.Constraint("DistanceY", -1, 1, 3, 3, 21.831),
    Sketcher.Constraint("DistanceX", 1, 3, -1, 1, 30.79647),
    Sketcher.Constraint("DistanceY", 1, 3, -1, 1, 17.78035),
    Sketcher.Constraint("DistanceX", -1, 1, 2, 3, 19.332479),
    Sketcher.Constraint("DistanceX", -1, 1, 3, 3, 28.295721),
    Sketcher.Constraint("DistanceX", 0, 3, 2, 3, 44.477691),
    Sketcher.Constraint("DistanceY", -1, 1, 0, 3, 25.145212),
    Sketcher.Constraint("DistanceY", 2, 3, -1, 1, 30.058204),
])
sketch7.setExpression("Constraints[3]", "Params.sketch7_diameter")
pad6 = body6.newObject("PartDesign::Pad", "Pad005")
pad6.Profile = sketch7
pad6.Type = "TwoLengths"
pad6.setExpression("Length", "Params.pad6_length")
pad6.setExpression("Length2", "Params.pad6_length2")
pad6.Reversed = True
doc.recompute()

body7 = doc.addObject("PartDesign::Body", "Body006")
body7.BaseFeature = body6
boolean = body.newObject("PartDesign::Boolean", "Boolean")
boolean.Type = "Cut"
boolean.addObjects([body7])
doc.recompute()

boolean2 = body2.newObject("PartDesign::Boolean", "Boolean001")
boolean2.Type = "Cut"
boolean2.addObjects([body6])
doc.recompute()

fillet = body2.newObject("PartDesign::Fillet", "Fillet")
fillet.Base = (boolean2, edges_at(boolean2, [(65.094, 72.375, -11.357), (71.231, 72.375, -6.555)]))
fillet.setExpression("Radius", "Params.fillet_radius")

doc.recompute()
